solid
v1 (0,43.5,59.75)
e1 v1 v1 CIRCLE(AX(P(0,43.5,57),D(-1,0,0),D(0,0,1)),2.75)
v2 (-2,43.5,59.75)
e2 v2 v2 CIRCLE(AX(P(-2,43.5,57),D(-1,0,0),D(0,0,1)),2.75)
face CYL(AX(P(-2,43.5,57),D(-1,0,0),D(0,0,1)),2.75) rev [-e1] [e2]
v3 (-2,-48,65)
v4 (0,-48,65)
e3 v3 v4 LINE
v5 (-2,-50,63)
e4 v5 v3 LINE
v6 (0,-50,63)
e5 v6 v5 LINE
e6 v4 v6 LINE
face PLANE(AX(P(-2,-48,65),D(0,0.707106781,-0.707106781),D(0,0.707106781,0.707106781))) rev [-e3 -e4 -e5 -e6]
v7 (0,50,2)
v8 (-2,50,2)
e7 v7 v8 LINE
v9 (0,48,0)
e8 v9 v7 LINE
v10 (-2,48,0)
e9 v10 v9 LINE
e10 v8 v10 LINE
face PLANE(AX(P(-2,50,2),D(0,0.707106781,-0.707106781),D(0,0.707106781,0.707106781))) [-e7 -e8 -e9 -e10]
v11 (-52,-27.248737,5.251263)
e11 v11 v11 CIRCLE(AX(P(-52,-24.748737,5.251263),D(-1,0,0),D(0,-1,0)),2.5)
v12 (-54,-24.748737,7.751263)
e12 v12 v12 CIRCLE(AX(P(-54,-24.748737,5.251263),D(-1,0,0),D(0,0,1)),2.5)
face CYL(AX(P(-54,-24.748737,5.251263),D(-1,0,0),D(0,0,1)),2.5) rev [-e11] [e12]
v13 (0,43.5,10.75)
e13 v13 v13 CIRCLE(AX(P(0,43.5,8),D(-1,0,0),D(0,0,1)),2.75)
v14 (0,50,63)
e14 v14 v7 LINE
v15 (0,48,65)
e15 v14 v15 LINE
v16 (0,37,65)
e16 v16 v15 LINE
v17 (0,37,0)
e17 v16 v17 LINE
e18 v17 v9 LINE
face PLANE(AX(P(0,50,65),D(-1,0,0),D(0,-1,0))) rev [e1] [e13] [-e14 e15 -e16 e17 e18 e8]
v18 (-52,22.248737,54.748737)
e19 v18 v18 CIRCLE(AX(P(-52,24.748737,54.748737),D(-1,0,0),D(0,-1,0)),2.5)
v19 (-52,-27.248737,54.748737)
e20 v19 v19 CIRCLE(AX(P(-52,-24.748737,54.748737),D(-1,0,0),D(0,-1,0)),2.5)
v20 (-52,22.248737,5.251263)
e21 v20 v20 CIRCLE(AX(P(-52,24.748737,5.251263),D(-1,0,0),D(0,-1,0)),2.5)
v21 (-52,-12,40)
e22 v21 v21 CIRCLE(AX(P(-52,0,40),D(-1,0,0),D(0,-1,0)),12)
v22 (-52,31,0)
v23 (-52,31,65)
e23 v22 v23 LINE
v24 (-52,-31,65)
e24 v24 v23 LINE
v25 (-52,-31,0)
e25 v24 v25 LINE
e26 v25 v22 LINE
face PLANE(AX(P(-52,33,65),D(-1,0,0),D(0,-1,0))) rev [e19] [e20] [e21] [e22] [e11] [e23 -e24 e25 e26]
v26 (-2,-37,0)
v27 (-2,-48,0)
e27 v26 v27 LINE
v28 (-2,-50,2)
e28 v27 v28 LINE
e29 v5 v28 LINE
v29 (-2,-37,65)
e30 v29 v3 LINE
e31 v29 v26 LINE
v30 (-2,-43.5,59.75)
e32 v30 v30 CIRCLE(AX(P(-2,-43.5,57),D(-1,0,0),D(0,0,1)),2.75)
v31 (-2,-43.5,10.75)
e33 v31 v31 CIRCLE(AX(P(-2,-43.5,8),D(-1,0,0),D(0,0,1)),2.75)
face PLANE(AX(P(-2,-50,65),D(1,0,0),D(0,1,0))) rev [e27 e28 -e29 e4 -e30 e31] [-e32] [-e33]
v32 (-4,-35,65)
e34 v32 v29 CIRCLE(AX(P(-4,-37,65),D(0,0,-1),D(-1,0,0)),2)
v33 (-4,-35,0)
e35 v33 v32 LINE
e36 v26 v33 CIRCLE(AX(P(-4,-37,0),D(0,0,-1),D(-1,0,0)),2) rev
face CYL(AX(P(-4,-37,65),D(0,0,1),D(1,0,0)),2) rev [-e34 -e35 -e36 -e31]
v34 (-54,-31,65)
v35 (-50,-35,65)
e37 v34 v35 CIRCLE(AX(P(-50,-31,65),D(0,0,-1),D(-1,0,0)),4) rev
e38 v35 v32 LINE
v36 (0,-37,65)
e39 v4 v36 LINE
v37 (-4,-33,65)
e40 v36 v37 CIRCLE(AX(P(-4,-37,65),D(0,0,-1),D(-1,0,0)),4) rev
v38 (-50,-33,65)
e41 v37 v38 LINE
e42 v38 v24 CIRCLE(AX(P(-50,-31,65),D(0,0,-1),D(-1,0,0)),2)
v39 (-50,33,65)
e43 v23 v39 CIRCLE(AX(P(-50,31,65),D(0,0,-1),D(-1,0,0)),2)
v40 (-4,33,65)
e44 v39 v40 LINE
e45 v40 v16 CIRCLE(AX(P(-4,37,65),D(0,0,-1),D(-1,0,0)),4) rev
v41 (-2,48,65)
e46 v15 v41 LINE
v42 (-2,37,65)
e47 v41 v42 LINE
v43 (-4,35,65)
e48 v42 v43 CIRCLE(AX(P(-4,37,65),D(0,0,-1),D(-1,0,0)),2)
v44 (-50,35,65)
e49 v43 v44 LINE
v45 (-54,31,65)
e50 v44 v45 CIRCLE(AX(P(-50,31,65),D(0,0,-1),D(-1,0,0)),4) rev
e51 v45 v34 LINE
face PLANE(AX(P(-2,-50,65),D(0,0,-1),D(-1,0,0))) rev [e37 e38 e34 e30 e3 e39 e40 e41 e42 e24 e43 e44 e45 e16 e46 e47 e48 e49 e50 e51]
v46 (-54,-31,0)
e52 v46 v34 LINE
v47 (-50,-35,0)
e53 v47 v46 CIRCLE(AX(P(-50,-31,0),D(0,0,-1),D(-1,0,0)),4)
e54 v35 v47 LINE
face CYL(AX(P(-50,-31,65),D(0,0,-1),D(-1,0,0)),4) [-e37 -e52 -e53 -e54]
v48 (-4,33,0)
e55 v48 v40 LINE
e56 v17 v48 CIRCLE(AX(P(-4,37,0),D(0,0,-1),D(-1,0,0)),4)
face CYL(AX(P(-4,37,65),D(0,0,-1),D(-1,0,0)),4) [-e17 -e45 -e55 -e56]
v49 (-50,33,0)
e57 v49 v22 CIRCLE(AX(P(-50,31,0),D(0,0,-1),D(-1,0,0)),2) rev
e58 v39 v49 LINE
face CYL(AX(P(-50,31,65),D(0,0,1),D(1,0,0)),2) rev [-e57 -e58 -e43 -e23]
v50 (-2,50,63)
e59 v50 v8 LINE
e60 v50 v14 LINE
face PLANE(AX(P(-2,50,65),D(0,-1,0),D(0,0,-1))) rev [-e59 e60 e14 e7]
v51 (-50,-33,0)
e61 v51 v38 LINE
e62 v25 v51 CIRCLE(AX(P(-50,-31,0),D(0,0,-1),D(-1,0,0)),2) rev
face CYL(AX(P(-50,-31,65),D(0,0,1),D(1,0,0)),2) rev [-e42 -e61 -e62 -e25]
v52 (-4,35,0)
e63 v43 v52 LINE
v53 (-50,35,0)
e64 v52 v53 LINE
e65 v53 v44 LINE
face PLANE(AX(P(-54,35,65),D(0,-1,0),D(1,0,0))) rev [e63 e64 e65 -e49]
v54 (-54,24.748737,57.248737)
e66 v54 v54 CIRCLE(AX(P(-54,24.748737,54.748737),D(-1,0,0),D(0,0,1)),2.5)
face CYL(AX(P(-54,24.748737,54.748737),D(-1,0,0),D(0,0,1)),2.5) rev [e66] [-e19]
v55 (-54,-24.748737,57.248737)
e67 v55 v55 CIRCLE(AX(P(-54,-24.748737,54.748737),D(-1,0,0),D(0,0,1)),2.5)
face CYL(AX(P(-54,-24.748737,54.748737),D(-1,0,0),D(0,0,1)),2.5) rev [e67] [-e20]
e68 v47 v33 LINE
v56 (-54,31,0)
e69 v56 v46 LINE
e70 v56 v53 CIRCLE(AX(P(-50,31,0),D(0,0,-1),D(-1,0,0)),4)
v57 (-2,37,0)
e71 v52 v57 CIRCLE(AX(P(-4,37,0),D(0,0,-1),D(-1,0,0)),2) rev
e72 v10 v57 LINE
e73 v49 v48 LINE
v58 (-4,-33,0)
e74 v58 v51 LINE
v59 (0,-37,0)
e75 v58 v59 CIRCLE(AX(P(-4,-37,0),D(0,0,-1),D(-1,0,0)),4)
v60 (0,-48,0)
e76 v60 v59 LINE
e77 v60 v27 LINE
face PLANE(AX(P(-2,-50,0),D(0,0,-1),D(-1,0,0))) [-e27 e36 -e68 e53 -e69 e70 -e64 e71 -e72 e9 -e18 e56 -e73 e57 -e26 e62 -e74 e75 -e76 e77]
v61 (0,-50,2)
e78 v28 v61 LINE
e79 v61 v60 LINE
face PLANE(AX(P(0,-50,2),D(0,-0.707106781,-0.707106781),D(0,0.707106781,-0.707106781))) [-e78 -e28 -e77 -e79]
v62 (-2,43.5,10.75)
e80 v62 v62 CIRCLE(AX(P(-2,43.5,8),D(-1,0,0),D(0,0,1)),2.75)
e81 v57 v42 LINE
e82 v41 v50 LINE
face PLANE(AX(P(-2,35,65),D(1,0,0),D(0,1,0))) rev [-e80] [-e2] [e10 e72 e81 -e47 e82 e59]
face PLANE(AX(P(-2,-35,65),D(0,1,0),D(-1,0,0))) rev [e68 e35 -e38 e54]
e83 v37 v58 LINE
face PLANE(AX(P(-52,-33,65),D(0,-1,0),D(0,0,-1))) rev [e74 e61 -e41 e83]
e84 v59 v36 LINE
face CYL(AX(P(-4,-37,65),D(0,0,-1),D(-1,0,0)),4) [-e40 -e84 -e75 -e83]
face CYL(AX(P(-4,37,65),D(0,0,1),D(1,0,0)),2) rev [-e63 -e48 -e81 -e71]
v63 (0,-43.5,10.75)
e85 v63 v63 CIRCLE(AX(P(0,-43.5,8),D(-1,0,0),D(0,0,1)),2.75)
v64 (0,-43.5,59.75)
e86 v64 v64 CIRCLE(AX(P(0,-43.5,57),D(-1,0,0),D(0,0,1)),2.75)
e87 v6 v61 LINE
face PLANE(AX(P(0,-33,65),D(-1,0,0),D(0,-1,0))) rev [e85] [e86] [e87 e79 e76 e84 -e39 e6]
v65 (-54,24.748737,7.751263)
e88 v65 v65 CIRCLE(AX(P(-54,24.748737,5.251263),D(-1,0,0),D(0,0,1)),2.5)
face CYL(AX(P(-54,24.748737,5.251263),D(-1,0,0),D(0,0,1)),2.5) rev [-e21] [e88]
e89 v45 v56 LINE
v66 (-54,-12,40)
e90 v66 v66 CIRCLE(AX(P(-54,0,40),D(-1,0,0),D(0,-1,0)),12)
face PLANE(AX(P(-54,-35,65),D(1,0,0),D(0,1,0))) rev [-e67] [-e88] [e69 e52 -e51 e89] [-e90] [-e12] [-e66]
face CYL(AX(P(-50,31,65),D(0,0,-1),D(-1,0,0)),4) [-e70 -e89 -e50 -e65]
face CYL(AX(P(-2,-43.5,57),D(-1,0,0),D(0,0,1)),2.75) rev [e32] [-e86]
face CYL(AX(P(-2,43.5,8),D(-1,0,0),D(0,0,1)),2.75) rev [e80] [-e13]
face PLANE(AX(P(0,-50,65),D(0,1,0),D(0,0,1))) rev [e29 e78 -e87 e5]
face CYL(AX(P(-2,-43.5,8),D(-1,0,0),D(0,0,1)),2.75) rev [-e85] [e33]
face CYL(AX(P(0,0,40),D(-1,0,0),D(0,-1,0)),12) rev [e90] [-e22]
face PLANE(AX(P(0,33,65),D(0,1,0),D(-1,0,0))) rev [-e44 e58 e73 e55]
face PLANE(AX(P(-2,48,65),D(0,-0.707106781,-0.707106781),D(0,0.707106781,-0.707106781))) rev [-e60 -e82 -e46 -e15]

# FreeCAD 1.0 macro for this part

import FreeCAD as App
import Part
import Sketcher

V = App.Vector
Q = App.Units.Quantity


def edges_at(feature, points):
    """Names of the edges that pass closest to the given points."""
    edges = feature.Shape.Edges
    near = lambda p: min(range(len(edges)), key=lambda i: edges[i].distToShape(Part.Vertex(*p))[0])
    return sorted({f"Edge{near(p) + 1}" for p in points})

doc = App.newDocument("Part")
body = doc.addObject("PartDesign::Body", "Body")

# Sketch on XY plane
sketch1 = body.newObject("Sketcher::SketchObject", "Sketch")
sketch1.AttachmentSupport = (doc.getObject("XY_Plane"), [""])
sketch1.MapMode = "FlatFace"
sketch1.addGeometry([
    Part.LineSegment(V(0, -50, 0), V(0, -33, 0)),  # 0
    Part.LineSegment(V(0, -33, 0), V(-52, -33, 0)),  # 1
    Part.LineSegment(V(-52, -33, 0), V(-52, 33, 0)),  # 2
    Part.LineSegment(V(-52, 33, 0), V(0, 33, 0)),  # 3
    Part.LineSegment(V(0, 33, 0), V(0, 50, 0)),  # 4
    Part.LineSegment(V(0, 50, 0), V(-2, 50, 0)),  # 5
    Part.LineSegment(V(-2, 50, 0), V(-2, 35, 0)),  # 6
    Part.LineSegment(V(-2, 35, 0), V(-54, 35, 0)),  # 7
    Part.LineSegment(V(-54, 35, 0), V(-54, -35, 0)),  # 8
    Part.LineSegment(V(-54, -35, 0), V(-2, -35, 0)),  # 9
    Part.LineSegment(V(-2, -35, 0), V(-2, -50, 0)),  # 10
    Part.LineSegment(V(-2, -50, 0), V(0, -50, 0)),  # 11
], False)
sketch1.addConstraint([
    Sketcher.Constraint("Coincident", 0, 2, 1, 1),
    Sketcher.Constraint("Coincident", 1, 2, 2, 1),
    Sketcher.Constraint("Coincident", 2, 2, 3, 1),
    Sketcher.Constraint("Coincident", 3, 2, 4, 1),
    Sketcher.Constraint("Coincident", 4, 2, 5, 1),
    Sketcher.Constraint("Coincident", 5, 2, 6, 1),
    Sketcher.Constraint("Coincident", 6, 2, 7, 1),
    Sketcher.Constraint("Coincident", 7, 2, 8, 1),
    Sketcher.Constraint("Coincident", 8, 2, 9, 1),
    Sketcher.Constraint("Coincident", 9, 2, 10, 1),
    Sketcher.Constraint("Coincident", 10, 2, 11, 1),
    Sketcher.Constraint("Coincident", 11, 2, 0, 1),
    Sketcher.Constraint("Vertical", 0),
    Sketcher.Constraint("Horizontal", 1),
    Sketcher.Constraint("Vertical", 2),
    Sketcher.Constraint("Horizontal", 3),
    Sketcher.Constraint("Vertical", 4),
    Sketcher.Constraint("Horizontal", 5),
    Sketcher.Constraint("Vertical", 6),
    Sketcher.Constraint("Horizontal", 7),
    Sketcher.Constraint("Vertical", 8),
    Sketcher.Constraint("Horizontal", 9),
    Sketcher.Constraint("Vertical", 10),
    Sketcher.Constraint("Horizontal", 11),
    Sketcher.Constraint("Symmetric", 0, 2, 3, 2, -1, 1),
    Sketcher.Constraint("Symmetric", 6, 2, 9, 2, -1),
    Sketcher.Constraint("Symmetric", 4, 2, 11, 2, -1),
    Sketcher.Constraint("Equal", 3, 7),
    Sketcher.Constraint("DistanceX", 1, 2, 1, 1, Q("52 mm")),
    Sketcher.Constraint("DistanceX", 5, 2, 5, 1, Q("2 mm")),
    Sketcher.Constraint("DistanceY", 0, 1, 0, 2, Q("17 mm")),
    Sketcher.Constraint("DistanceY", 2, 1, 2, 2, Q("66 mm")),
    Sketcher.Constraint("DistanceY", 6, 2, 6, 1, Q("15 mm")),
])
pad1 = body.newObject("PartDesign::Pad", "Pad")
pad1.Profile = sketch1
pad1.Length = 65

# Sketch on YZ plane
sketch2 = body.newObject("Sketcher::SketchObject", "Sketch001")
sketch2.AttachmentSupport = (doc.getObject("YZ_Plane"), [""])
sketch2.MapMode = "FlatFace"
sketch2.AttachmentOffset = App.Placement(V(0, 0, -54), App.Rotation())
sketch2.addGeometry(Part.Circle(V(0, 40, 0), V(0, 0, 1), 12), False)
sketch2.addConstraint([
    Sketcher.Constraint("PointOnObject", 0, 3, -2),
    Sketcher.Constraint("Diameter", 0, Q("24 mm")),
    Sketcher.Constraint("DistanceY", -1, 1, 0, 3, Q("40 mm")),
])
pocket1 = body.newObject("PartDesign::Pocket", "Pocket")
pocket1.Profile = sketch2
pocket1.Type = "ThroughAll"
pocket1.Reversed = True

# Sketch on YZ plane
sketch3 = body.newObject("Sketcher::SketchObject", "Sketch002")
sketch3.AttachmentSupport = (doc.getObject("YZ_Plane"), [""])
sketch3.MapMode = "FlatFace"
sketch3.AttachmentOffset = App.Placement(V(0, 0, -2), App.Rotation())
sketch3.addGeometry([
    Part.Circle(V(-43.5, 57, 0), V(0, 0, 1), 2.75),
    Part.Circle(V(-43.5, 8, 0), V(0, 0, 1), 2.75),
    Part.Circle(V(43.5, 57, 0), V(0, 0, 1), 2.75),
    Part.Circle(V(43.5, 8, 0), V(0, 0, 1), 2.75),
], False)
sketch3.addConstraint([
    Sketcher.Constraint("Equal", 0, 1),
    Sketcher.Constraint("Equal", 1, 2),
    Sketcher.Constraint("Equal", 2, 3),
    Sketcher.Constraint("Symmetric", 0, 3, 2, 3, -2),
    Sketcher.Constraint("Symmetric", 1, 3, 3, 3, -2),
    Sketcher.Constraint("Vertical", 0, 3, 1, 3),
    Sketcher.Constraint("Diameter", 0, Q("5.5 mm")),
    Sketcher.Constraint("DistanceY", -1, 1, 0, 3, Q("57 mm")),
    Sketcher.Constraint("DistanceY", -1, 1, 1, 3, Q("8 mm")),
    Sketcher.Constraint("DistanceX", 0, 3, 2, 3, Q("87 mm")),
])
doc.recompute()
hole = body.newObject("PartDesign::Hole", "Hole")
hole.Profile = sketch3
hole.ThreadType = "None"
hole.Diameter = 5.5
hole.DepthType = "ThroughAll"
hole.Reversed = True

# Sketch on YZ plane
sketch4 = body.newObject("Sketcher::SketchObject", "Sketch003")
sketch4.AttachmentSupport = (doc.getObject("YZ_Plane"), [""])
sketch4.MapMode = "FlatFace"
sketch4.AttachmentOffset = App.Placement(V(0, 0, -54), App.Rotation())
sketch4.addGeometry([
    Part.Circle(V(24.748737, 54.748737, 0), V(0, 0, 1), 2.5),
    Part.Circle(V(-24.748737, 54.748737, 0), V(0, 0, 1), 2.5),
    Part.Circle(V(-24.748737, 5.251263, 0), V(0, 0, 1), 2.5),
    Part.Circle(V(24.748737, 5.251263, 0), V(0, 0, 1), 2.5),
], False)
sketch4.addConstraint([
    Sketcher.Constraint("Equal", 0, 1),
    Sketcher.Constraint("Equal", 1, 2),
    Sketcher.Constraint("Equal", 2, 3),
    Sketcher.Constraint("Symmetric", 0, 3, 1, 3, -2),
    Sketcher.Constraint("Symmetric", 2, 3, 3, 3, -2),
    Sketcher.Constraint("Vertical", 1, 3, 2, 3),
    Sketcher.Constraint("Diameter", 0, Q("5 mm")),
    Sketcher.Constraint("DistanceX", -1, 1, 0, 3, Q("24.748737 mm")),
    Sketcher.Constraint("DistanceY", -1, 1, 0, 3, Q("54.748737 mm")),
    Sketcher.Constraint("DistanceY", -1, 1, 2, 3, Q("5.251263 mm")),
])
doc.recompute()
hole2 = body.newObject("PartDesign::Hole", "Hole001")
hole2.Profile = sketch4
hole2.ThreadType = "None"
hole2.Diameter = 5
hole2.DepthType = "ThroughAll"
hole2.Reversed = True
doc.recompute()

chamfer = body.newObject("PartDesign::Chamfer", "Chamfer")
chamfer.Base = (hole2, edges_at(hole2, [
    (-1, 50, 0),
    (-1, -50, 0),
    (-1, 50, 65),
    (-1, -50, 65),
]))
chamfer.Size = 2
doc.recompute()

fillet = body.newObject("PartDesign::Fillet", "Fillet")
fillet.Base = (chamfer, edges_at(chamfer, [
    (-54, -35, 32.5),
    (-54, 35, 32.5),
    (0, 33, 32.5),
    (0, -33, 32.5),
]))
fillet.Radius = 4
doc.recompute()

fillet2 = body.newObject("PartDesign::Fillet", "Fillet001")
fillet2.Base = (fillet, edges_at(fillet, [
    (-2, -35, 32.5),
    (-2, 35, 32.5),
    (-52, 33, 32.5),
    (-52, -33, 32.5),
]))
fillet2.Radius = 2

doc.recompute()
